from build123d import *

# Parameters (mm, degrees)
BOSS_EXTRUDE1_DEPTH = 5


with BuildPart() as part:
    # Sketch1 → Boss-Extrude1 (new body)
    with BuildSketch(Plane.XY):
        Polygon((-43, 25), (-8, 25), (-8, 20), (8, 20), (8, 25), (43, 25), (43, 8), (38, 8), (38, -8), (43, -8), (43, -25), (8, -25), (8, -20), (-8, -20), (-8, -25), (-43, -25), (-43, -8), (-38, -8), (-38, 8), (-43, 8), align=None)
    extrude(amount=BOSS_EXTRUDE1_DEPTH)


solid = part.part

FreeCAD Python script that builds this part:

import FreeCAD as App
import Part
import Sketcher

V = App.Vector
Q = App.Units.Quantity


def add_polygon(sketch, points):
    """Adds a closed chain of lines whose ends are joined by coincident constraints."""
    first, n = sketch.GeometryCount, len(points)
    for a, b in zip(points, points[1:] + points[:1]):
        sketch.addGeometry(Part.LineSegment(App.Vector(*a, 0), App.Vector(*b, 0)), False)
    for i in range(n):
        sketch.addConstraint(Sketcher.Constraint("Coincident", first + i, 2, first + (i + 1) % n, 1))

doc = App.newDocument("Part")
body = doc.addObject("PartDesign::Body", "Body")

# Sketch on XY plane
sketch1 = doc.addObject("Sketcher::SketchObject", "Sketch")
body.addObject(sketch1)
sketch1.AttachmentSupport = (doc.XY_Plane, [""])
sketch1.MapMode = "FlatFace"
add_polygon(sketch1, [(-8, 25), (-43, 25), (-43, 8), (-38, 8), (-38, -8), (-43, -8), (-43, -25), (-8, -25), (-8, -20), (8, -20), (8, -25), (43, -25), (43, -8), (38, -8), (38, 8), (43, 8), (43, 25), (8, 25), (8, 20), (-8, 20)])  # lines 0-19
sketch1.addConstraint(Sketcher.Constraint("Horizontal", 0))
sketch1.addConstraint(Sketcher.Constraint("Vertical", 1))
sketch1.addConstraint(Sketcher.Constraint("Horizontal", 2))
sketch1.addConstraint(Sketcher.Constraint("Vertical", 3))
sketch1.addConstraint(Sketcher.Constraint("Horizontal", 4))
sketch1.addConstraint(Sketcher.Constraint("Vertical", 5))
sketch1.addConstraint(Sketcher.Constraint("Horizontal", 6))
sketch1.addConstraint(Sketcher.Constraint("Vertical", 7))
sketch1.addConstraint(Sketcher.Constraint("Horizontal", 8))
sketch1.addConstraint(Sketcher.Constraint("Vertical", 9))
sketch1.addConstraint(Sketcher.Constraint("Horizontal", 10))
sketch1.addConstraint(Sketcher.Constraint("Vertical", 11))
sketch1.addConstraint(Sketcher.Constraint("Horizontal", 12))
sketch1.addConstraint(Sketcher.Constraint("Vertical", 13))
sketch1.addConstraint(Sketcher.Constraint("Horizontal", 14))
sketch1.addConstraint(Sketcher.Constraint("Vertical", 15))
sketch1.addConstraint(Sketcher.Constraint("Horizontal", 16))
sketch1.addConstraint(Sketcher.Constraint("Vertical", 17))
sketch1.addConstraint(Sketcher.Constraint("Horizontal", 18))
sketch1.addConstraint(Sketcher.Constraint("Vertical", 19))
sketch1.addConstraint(Sketcher.Constraint("Symmetric", 0, 2, 10, 2, -1, 1))
sketch1.addConstraint(Sketcher.Constraint("Symmetric", 2, 2, 12, 2, -1, 1))
sketch1.addConstraint(Sketcher.Constraint("Symmetric", 4, 2, 14, 2, -1, 1))
sketch1.addConstraint(Sketcher.Constraint("Symmetric", 6, 2, 16, 2, -1, 1))
sketch1.addConstraint(Sketcher.Constraint("Symmetric", 8, 2, 18, 2, -1, 1))
sketch1.addConstraint(Sketcher.Constraint("Symmetric", 6, 2, 9, 2, -2))
sketch1.addConstraint(Sketcher.Constraint("Symmetric", 4, 2, 11, 2, -2))
sketch1.addConstraint(Sketcher.Constraint("Equal", 18, 3))
sketch1.addConstraint(Sketcher.Constraint("Equal", 14, 7))
sketch1.addConstraint(Sketcher.Constraint("DistanceX", 0, 2, 0, 1, Q("35 mm")))
sketch1.addConstraint(Sketcher.Constraint("DistanceX", 2, 1, 2, 2, Q("5 mm")))
sketch1.addConstraint(Sketcher.Constraint("DistanceX", 8, 1, 8, 2, Q("16 mm")))
sketch1.addConstraint(Sketcher.Constraint("DistanceY", 1, 2, 1, 1, Q("17 mm")))
pad1 = doc.addObject("PartDesign::Pad", "Pad")
body.addObject(pad1)
pad1.Profile = sketch1
pad1.Length = 5

doc.recompute()
